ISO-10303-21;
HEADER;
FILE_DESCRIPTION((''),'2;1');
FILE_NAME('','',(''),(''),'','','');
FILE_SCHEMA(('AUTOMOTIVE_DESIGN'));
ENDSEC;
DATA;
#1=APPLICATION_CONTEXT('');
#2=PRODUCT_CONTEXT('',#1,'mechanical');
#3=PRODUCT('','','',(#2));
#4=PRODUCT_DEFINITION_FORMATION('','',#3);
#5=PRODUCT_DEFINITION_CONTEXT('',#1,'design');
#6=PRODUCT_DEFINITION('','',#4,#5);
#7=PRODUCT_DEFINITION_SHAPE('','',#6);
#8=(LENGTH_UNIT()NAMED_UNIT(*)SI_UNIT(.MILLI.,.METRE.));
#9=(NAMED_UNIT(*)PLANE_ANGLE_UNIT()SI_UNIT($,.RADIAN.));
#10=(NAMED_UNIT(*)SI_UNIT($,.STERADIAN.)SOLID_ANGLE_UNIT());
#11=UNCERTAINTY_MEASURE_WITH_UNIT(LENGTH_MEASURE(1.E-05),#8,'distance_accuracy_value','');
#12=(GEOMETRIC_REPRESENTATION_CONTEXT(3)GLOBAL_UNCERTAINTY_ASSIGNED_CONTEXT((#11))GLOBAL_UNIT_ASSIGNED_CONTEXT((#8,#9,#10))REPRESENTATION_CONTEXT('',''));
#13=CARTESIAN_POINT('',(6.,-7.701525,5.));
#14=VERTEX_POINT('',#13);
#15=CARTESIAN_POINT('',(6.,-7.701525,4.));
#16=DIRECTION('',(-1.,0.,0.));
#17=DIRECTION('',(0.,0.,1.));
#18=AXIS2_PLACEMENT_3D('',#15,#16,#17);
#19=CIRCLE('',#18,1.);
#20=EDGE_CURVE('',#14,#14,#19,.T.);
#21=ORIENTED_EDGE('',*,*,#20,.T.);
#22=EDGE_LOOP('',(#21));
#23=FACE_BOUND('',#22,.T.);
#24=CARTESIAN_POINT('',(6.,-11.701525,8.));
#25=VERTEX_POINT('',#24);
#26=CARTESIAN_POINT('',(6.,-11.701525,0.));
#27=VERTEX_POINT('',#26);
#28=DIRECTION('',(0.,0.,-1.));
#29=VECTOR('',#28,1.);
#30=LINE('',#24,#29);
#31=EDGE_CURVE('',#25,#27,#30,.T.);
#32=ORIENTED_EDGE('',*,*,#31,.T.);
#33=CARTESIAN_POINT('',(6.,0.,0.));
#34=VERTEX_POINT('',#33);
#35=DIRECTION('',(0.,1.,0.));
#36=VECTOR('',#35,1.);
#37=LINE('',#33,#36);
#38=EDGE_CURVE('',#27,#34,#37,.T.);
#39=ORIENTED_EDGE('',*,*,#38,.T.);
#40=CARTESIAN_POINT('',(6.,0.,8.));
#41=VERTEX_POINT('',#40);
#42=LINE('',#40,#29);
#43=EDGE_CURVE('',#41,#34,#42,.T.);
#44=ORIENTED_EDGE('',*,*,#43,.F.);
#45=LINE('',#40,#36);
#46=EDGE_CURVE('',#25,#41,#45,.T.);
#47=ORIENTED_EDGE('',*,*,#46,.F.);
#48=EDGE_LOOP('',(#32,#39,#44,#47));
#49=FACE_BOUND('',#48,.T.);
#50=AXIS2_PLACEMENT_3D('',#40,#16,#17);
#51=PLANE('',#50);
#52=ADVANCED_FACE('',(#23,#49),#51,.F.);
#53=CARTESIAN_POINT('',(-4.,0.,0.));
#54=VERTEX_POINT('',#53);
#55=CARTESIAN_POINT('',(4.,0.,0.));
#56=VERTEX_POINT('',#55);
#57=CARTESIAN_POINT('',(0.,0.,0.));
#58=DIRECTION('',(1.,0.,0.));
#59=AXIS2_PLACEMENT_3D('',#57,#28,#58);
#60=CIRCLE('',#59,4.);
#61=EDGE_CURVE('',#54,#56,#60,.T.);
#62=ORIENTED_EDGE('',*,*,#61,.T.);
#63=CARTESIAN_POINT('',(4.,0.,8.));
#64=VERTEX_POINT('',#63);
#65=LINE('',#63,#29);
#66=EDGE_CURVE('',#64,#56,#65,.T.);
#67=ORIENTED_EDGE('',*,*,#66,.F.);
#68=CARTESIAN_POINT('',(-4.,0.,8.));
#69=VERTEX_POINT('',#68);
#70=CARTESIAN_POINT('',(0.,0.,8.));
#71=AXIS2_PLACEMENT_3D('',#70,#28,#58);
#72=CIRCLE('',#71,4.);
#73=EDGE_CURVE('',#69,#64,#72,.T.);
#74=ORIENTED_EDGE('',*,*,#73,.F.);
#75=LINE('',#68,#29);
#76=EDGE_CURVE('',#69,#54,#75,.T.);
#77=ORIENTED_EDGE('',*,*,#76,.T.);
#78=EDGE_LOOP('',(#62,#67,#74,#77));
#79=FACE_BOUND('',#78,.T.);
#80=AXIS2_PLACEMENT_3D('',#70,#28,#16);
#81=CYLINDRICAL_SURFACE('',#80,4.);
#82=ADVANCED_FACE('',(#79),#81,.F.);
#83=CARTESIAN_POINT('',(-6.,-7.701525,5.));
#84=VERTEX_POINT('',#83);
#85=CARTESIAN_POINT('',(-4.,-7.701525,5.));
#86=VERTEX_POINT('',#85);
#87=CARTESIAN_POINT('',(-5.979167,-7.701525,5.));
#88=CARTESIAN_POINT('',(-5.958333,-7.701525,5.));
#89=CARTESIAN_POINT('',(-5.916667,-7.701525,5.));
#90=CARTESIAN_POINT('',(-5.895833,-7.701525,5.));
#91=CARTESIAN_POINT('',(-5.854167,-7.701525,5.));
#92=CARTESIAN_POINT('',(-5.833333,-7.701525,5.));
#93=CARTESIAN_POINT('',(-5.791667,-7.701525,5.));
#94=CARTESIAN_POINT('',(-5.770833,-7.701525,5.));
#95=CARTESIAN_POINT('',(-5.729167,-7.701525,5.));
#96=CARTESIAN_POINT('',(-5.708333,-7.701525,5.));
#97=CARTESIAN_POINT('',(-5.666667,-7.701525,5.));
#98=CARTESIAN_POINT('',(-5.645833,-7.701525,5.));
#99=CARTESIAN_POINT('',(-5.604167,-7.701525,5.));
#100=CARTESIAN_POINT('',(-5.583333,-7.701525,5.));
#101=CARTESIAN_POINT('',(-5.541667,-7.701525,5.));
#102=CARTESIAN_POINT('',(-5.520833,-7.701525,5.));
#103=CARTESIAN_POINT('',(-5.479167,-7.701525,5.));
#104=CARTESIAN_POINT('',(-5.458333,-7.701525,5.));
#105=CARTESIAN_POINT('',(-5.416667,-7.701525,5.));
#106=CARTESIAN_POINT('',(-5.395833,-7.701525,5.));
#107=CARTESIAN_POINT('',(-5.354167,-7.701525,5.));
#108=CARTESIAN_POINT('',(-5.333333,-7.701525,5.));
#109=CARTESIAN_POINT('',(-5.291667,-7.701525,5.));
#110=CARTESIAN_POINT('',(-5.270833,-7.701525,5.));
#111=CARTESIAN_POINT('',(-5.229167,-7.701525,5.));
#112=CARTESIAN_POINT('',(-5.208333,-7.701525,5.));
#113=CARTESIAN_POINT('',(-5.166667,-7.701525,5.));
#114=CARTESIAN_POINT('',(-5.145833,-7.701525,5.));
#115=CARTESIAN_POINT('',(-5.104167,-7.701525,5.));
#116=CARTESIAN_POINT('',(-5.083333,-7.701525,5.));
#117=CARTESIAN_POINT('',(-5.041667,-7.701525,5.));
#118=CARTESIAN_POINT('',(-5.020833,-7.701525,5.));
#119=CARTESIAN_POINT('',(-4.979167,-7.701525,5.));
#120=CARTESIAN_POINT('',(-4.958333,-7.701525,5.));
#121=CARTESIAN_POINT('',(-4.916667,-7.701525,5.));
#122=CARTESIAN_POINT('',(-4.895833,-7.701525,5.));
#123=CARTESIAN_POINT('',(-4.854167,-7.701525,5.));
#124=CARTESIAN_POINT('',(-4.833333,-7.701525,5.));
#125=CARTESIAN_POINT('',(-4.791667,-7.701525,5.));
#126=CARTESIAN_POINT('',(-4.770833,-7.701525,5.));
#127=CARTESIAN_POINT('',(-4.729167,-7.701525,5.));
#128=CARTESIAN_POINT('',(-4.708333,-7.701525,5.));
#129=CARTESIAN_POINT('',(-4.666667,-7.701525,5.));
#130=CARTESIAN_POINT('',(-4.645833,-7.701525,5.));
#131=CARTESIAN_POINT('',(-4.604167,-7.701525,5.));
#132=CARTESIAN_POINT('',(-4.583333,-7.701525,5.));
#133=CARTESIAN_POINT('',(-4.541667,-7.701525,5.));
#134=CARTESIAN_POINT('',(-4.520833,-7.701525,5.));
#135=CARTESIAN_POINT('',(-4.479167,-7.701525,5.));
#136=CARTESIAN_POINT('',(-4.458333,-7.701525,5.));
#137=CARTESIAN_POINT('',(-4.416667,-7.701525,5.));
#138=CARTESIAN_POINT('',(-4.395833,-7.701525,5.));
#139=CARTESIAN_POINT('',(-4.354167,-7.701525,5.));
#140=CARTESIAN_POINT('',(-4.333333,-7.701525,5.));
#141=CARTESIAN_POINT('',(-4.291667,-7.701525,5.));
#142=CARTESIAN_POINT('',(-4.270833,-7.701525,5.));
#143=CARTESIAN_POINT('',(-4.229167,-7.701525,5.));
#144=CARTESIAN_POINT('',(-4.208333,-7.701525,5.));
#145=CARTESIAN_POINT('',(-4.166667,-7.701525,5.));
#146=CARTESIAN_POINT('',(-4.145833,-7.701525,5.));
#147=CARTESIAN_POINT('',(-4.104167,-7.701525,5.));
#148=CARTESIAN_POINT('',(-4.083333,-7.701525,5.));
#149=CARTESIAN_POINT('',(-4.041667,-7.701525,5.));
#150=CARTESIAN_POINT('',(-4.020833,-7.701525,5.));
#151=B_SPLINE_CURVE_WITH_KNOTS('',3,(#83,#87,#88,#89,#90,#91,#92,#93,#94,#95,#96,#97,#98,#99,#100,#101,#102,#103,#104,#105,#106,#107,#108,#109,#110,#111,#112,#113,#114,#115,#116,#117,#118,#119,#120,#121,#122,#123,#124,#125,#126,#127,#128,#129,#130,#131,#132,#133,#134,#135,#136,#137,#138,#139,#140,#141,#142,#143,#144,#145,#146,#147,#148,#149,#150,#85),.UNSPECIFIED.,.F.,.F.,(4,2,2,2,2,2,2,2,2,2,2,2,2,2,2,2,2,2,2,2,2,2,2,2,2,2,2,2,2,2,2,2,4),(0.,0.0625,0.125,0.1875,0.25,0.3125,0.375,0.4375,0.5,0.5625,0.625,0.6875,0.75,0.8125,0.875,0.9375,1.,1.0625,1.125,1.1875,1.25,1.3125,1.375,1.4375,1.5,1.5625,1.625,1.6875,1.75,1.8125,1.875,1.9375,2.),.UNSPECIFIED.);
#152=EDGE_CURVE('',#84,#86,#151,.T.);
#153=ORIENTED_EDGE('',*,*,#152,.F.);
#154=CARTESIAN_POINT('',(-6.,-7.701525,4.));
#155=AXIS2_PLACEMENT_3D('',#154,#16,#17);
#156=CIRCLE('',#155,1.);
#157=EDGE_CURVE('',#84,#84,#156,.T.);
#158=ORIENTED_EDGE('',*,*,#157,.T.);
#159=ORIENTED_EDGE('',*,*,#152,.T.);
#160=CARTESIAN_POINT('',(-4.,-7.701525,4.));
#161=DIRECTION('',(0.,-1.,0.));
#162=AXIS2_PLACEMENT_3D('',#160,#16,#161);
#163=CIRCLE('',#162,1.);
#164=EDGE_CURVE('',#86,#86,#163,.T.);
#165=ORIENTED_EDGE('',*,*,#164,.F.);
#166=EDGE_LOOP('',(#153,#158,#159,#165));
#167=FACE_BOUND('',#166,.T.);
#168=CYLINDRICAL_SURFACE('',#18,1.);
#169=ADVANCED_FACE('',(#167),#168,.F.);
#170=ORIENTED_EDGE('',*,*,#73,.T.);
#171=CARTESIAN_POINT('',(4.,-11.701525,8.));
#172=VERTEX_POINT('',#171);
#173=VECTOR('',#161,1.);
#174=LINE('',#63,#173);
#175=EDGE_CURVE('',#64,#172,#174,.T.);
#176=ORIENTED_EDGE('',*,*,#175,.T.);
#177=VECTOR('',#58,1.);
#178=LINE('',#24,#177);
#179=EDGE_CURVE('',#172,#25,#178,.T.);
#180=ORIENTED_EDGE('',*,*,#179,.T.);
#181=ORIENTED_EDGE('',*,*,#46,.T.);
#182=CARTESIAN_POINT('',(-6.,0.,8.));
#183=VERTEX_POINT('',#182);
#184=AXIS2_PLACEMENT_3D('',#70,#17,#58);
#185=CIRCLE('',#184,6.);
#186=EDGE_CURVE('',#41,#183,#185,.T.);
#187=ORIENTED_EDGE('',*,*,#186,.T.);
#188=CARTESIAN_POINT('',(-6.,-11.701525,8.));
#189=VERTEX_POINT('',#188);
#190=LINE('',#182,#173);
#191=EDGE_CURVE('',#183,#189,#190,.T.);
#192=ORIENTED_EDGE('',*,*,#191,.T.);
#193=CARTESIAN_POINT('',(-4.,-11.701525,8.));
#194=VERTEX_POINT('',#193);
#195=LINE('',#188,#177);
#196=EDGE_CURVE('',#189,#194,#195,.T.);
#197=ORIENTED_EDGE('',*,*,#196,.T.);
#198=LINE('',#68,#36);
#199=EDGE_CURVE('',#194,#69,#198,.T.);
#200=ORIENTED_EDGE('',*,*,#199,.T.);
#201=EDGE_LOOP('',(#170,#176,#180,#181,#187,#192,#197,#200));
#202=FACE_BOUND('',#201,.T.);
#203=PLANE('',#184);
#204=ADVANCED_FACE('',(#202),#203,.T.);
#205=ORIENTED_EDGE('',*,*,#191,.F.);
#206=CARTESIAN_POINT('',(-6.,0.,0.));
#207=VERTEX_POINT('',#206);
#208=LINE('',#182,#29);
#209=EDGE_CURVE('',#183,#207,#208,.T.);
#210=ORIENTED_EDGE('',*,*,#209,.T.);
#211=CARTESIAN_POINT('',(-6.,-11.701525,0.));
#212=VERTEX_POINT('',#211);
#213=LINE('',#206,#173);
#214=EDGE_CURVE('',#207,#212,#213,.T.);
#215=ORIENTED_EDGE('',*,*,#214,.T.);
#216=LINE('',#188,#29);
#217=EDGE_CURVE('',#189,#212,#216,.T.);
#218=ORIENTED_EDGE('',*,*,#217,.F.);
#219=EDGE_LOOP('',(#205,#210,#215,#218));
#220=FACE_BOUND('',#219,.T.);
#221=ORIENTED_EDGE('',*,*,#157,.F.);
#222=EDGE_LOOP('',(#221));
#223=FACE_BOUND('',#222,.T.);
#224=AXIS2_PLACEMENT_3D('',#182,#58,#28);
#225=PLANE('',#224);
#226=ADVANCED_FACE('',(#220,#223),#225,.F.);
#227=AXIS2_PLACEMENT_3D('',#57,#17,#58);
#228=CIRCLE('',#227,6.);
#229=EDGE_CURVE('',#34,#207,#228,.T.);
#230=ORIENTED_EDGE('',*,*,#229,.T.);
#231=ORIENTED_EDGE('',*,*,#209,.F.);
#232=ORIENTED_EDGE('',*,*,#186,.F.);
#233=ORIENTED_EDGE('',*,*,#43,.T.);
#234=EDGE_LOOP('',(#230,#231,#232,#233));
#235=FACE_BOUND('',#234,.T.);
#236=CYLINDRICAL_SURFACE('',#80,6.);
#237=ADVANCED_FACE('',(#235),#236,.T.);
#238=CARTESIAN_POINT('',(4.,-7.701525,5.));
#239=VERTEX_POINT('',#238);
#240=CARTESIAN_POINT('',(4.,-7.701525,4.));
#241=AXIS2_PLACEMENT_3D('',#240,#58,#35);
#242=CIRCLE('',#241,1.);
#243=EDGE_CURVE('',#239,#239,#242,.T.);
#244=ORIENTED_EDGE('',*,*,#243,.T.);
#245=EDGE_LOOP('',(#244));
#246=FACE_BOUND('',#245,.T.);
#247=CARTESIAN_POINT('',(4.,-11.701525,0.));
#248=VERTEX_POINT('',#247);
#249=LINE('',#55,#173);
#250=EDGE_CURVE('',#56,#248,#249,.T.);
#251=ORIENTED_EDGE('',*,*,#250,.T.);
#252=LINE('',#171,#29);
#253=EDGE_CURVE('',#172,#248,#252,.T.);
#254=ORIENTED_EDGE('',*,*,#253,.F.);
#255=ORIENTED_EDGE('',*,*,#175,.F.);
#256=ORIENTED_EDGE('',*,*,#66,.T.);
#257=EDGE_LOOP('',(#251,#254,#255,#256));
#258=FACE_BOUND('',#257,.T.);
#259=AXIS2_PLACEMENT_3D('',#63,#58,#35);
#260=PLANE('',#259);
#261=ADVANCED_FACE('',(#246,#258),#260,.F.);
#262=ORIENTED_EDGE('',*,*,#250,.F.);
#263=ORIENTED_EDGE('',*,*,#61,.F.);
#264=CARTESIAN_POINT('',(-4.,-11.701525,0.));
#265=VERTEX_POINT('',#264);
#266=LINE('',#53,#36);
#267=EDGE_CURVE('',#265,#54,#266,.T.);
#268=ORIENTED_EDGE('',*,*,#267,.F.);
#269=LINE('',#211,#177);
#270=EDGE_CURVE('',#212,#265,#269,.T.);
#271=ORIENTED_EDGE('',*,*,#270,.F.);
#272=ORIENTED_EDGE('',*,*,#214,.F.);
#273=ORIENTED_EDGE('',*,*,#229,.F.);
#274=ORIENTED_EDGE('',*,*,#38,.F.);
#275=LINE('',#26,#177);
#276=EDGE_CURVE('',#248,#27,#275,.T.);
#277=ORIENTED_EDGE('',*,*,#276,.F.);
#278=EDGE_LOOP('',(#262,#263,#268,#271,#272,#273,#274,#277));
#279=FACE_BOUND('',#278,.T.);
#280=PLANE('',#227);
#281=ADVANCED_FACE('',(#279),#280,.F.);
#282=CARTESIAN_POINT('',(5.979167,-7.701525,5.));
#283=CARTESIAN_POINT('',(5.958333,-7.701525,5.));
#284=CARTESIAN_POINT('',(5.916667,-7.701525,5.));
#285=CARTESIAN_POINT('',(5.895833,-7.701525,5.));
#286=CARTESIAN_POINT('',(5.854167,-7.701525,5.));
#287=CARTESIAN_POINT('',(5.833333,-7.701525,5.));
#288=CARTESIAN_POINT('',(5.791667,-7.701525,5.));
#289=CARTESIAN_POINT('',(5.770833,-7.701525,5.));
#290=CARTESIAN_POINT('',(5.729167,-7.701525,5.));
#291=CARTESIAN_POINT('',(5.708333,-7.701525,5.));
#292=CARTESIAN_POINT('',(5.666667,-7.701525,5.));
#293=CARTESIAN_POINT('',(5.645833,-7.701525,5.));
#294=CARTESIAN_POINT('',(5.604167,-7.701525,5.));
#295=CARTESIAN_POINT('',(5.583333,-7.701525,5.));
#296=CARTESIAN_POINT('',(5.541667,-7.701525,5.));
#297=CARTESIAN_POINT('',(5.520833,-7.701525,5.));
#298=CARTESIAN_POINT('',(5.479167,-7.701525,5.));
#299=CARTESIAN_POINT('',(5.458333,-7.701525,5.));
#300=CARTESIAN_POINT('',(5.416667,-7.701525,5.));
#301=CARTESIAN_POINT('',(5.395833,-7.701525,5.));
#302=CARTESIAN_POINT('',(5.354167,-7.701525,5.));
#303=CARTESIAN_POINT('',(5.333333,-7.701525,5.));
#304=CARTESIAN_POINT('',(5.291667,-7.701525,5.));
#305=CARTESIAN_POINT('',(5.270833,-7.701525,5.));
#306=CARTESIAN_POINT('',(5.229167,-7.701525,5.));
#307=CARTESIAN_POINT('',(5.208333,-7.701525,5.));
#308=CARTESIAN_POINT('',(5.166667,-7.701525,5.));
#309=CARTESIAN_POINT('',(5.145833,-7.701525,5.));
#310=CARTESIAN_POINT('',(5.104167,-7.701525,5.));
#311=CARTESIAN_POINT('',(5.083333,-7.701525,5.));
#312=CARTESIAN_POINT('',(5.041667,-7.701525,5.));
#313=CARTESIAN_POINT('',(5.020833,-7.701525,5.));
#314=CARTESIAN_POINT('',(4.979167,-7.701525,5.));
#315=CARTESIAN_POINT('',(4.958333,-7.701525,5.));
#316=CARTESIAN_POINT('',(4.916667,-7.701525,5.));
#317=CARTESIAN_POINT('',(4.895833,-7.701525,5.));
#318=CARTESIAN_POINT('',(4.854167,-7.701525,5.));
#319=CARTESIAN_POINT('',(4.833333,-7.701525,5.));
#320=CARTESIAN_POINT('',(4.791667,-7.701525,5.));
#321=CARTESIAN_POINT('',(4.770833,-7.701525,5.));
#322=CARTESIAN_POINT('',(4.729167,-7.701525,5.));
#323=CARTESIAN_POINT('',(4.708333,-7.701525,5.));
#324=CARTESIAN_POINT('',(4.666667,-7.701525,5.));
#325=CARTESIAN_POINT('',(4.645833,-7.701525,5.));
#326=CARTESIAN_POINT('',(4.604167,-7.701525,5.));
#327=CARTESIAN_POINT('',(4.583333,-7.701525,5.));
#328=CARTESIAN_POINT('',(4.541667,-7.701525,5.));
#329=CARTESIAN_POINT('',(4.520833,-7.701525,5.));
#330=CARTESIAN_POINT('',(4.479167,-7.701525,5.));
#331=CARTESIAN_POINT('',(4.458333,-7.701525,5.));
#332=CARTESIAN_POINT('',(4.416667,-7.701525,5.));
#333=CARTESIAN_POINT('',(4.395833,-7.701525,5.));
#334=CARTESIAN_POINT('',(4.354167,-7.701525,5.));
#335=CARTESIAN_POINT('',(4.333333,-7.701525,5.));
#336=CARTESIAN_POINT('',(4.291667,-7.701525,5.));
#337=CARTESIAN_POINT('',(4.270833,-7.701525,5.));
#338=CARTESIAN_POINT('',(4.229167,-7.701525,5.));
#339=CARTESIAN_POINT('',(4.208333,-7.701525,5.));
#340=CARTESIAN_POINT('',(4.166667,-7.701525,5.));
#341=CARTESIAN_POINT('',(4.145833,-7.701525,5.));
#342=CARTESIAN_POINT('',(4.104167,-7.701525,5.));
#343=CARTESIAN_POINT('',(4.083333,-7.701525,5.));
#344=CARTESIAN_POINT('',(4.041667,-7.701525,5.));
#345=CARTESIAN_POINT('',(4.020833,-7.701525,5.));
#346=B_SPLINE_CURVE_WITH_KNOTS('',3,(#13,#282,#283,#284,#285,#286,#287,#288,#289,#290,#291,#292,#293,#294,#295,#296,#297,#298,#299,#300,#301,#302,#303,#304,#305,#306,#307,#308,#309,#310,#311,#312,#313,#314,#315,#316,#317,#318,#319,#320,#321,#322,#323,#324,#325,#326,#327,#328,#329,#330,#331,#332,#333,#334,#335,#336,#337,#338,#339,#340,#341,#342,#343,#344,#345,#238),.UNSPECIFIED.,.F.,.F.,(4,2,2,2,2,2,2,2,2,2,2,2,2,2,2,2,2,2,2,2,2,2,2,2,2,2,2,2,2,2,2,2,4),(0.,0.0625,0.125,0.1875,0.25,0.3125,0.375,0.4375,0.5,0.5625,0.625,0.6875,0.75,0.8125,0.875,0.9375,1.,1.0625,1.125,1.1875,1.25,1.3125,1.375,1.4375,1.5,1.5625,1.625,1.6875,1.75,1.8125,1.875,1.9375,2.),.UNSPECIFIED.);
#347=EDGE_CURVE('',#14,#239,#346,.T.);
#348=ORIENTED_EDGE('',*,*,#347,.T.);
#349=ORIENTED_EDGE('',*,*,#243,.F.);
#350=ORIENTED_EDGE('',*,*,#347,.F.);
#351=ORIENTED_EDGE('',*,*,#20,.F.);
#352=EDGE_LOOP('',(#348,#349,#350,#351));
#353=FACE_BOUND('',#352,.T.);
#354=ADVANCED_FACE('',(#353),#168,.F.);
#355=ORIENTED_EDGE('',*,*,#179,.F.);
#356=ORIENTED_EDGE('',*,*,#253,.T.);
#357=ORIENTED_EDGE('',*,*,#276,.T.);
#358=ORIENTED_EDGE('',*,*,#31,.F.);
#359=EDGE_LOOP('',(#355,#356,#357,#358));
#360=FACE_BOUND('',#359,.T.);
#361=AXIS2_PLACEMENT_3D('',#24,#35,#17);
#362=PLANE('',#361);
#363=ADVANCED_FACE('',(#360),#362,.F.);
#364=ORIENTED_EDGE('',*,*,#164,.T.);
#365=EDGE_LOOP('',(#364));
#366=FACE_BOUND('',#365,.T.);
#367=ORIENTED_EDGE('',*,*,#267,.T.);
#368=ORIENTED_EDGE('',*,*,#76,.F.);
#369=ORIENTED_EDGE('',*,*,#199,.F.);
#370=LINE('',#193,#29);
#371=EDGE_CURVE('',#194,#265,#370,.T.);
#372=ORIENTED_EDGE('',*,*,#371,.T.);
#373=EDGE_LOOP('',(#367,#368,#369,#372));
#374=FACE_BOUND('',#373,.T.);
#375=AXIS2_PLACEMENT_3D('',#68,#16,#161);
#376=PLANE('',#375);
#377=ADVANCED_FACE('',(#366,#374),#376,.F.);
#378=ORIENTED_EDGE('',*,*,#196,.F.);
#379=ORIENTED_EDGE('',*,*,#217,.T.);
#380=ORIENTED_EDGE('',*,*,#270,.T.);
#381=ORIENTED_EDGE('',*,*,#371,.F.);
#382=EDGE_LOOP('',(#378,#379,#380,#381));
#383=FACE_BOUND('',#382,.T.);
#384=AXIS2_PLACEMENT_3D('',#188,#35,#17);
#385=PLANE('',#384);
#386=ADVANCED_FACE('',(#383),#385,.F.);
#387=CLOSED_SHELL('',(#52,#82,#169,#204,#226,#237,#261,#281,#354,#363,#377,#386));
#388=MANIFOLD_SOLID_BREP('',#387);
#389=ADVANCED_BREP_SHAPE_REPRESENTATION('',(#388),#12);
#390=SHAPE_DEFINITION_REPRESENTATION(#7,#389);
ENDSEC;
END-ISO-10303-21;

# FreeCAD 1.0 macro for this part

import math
import FreeCAD as App
import Part
import Sketcher
Q = App.Units.Quantity

doc = App.newDocument("Part")
body = doc.addObject("PartDesign::Body", "Body")

sketch1 = body.newObject("Sketcher::SketchObject", "Sketch")
sketch1.AttachmentSupport = (doc.getObject("XY_Plane"), [""])
sketch1.MapMode = "FlatFace"
sketch1.addGeometry(Part.LineSegment(App.Vector(-4, -11.7, 0), App.Vector(-4, 0, 0)), False)
sketch1.addGeometry(Part.ArcOfCircle(Part.Circle(App.Vector(0, 0, 0), App.Vector(0, 0, 1), 4), math.radians(0), math.radians(180)), False)
sketch1.addGeometry(Part.LineSegment(App.Vector(4, 0, 0), App.Vector(4, -11.7, 0)), False)
sketch1.addGeometry(Part.LineSegment(App.Vector(4, -11.7, 0), App.Vector(6, -11.7, 0)), False)
sketch1.addGeometry(Part.LineSegment(App.Vector(6, -11.7, 0), App.Vector(6, 0, 0)), False)
sketch1.addGeometry(Part.ArcOfCircle(Part.Circle(App.Vector(0, 0, 0), App.Vector(0, 0, 1), 6), math.radians(0), math.radians(180)), False)
sketch1.addGeometry(Part.LineSegment(App.Vector(-6, 0, 0), App.Vector(-6, -11.7, 0)), False)
sketch1.addGeometry(Part.LineSegment(App.Vector(-6, -11.7, 0), App.Vector(-4, -11.7, 0)), False)
sketch1.addConstraint(Sketcher.Constraint("Tangent", 0, 2, 1, 2))
sketch1.addConstraint(Sketcher.Constraint("Tangent", 1, 1, 2, 1))
sketch1.addConstraint(Sketcher.Constraint("Coincident", 2, 2, 3, 1))
sketch1.addConstraint(Sketcher.Constraint("Coincident", 3, 2, 4, 1))
sketch1.addConstraint(Sketcher.Constraint("Tangent", 4, 2, 5, 1))
sketch1.addConstraint(Sketcher.Constraint("Tangent", 5, 2, 6, 1))
sketch1.addConstraint(Sketcher.Constraint("Coincident", 6, 2, 7, 1))
sketch1.addConstraint(Sketcher.Constraint("Coincident", 7, 2, 0, 1))
sketch1.addConstraint(Sketcher.Constraint("Vertical", 0))
sketch1.addConstraint(Sketcher.Constraint("Vertical", 2))
sketch1.addConstraint(Sketcher.Constraint("Horizontal", 3))
sketch1.addConstraint(Sketcher.Constraint("Vertical", 4))
sketch1.addConstraint(Sketcher.Constraint("Vertical", 6))
sketch1.addConstraint(Sketcher.Constraint("Horizontal", 7))
sketch1.addConstraint(Sketcher.Constraint("Coincident", 1, 3, -1, 1))
sketch1.addConstraint(Sketcher.Constraint("Coincident", 5, 3, -1, 1))
sketch1.addConstraint(Sketcher.Constraint("Horizontal", 3, 2, 6, 2))
sketch1.addConstraint(Sketcher.Constraint("Radius", 1, Q("4 mm")))
sketch1.addConstraint(Sketcher.Constraint("Radius", 5, Q("6 mm")))
sketch1.addConstraint(Sketcher.Constraint("DistanceY", 0, 1, 0, 2, Q("11.701525 mm")))
pad1 = body.newObject("PartDesign::Pad", "Pad")
pad1.Profile = sketch1
pad1.Length = 8

sketch2 = body.newObject("Sketcher::SketchObject", "Sketch001")
sketch2.AttachmentSupport = (doc.getObject("YZ_Plane"), [""])
sketch2.MapMode = "FlatFace"
sketch2.AttachmentOffset = App.Placement(App.Vector(0, 0, -6), App.Rotation())
sketch2.addGeometry(Part.Circle(App.Vector(-7.7, 4, 0), App.Vector(0, 0, 1), 1), False)
sketch2.addConstraint(Sketcher.Constraint("Diameter", 0, Q("2 mm")))
sketch2.addConstraint(Sketcher.Constraint("DistanceY", -1, 1, 0, 3, Q("4 mm")))
sketch2.addConstraint(Sketcher.Constraint("DistanceX", 0, 3, -1, 1, Q("7.701525 mm")))
pocket1 = body.newObject("PartDesign::Pocket", "Pocket")
pocket1.Profile = sketch2
pocket1.Type = "ThroughAll"
pocket1.Reversed = True

doc.recompute()
